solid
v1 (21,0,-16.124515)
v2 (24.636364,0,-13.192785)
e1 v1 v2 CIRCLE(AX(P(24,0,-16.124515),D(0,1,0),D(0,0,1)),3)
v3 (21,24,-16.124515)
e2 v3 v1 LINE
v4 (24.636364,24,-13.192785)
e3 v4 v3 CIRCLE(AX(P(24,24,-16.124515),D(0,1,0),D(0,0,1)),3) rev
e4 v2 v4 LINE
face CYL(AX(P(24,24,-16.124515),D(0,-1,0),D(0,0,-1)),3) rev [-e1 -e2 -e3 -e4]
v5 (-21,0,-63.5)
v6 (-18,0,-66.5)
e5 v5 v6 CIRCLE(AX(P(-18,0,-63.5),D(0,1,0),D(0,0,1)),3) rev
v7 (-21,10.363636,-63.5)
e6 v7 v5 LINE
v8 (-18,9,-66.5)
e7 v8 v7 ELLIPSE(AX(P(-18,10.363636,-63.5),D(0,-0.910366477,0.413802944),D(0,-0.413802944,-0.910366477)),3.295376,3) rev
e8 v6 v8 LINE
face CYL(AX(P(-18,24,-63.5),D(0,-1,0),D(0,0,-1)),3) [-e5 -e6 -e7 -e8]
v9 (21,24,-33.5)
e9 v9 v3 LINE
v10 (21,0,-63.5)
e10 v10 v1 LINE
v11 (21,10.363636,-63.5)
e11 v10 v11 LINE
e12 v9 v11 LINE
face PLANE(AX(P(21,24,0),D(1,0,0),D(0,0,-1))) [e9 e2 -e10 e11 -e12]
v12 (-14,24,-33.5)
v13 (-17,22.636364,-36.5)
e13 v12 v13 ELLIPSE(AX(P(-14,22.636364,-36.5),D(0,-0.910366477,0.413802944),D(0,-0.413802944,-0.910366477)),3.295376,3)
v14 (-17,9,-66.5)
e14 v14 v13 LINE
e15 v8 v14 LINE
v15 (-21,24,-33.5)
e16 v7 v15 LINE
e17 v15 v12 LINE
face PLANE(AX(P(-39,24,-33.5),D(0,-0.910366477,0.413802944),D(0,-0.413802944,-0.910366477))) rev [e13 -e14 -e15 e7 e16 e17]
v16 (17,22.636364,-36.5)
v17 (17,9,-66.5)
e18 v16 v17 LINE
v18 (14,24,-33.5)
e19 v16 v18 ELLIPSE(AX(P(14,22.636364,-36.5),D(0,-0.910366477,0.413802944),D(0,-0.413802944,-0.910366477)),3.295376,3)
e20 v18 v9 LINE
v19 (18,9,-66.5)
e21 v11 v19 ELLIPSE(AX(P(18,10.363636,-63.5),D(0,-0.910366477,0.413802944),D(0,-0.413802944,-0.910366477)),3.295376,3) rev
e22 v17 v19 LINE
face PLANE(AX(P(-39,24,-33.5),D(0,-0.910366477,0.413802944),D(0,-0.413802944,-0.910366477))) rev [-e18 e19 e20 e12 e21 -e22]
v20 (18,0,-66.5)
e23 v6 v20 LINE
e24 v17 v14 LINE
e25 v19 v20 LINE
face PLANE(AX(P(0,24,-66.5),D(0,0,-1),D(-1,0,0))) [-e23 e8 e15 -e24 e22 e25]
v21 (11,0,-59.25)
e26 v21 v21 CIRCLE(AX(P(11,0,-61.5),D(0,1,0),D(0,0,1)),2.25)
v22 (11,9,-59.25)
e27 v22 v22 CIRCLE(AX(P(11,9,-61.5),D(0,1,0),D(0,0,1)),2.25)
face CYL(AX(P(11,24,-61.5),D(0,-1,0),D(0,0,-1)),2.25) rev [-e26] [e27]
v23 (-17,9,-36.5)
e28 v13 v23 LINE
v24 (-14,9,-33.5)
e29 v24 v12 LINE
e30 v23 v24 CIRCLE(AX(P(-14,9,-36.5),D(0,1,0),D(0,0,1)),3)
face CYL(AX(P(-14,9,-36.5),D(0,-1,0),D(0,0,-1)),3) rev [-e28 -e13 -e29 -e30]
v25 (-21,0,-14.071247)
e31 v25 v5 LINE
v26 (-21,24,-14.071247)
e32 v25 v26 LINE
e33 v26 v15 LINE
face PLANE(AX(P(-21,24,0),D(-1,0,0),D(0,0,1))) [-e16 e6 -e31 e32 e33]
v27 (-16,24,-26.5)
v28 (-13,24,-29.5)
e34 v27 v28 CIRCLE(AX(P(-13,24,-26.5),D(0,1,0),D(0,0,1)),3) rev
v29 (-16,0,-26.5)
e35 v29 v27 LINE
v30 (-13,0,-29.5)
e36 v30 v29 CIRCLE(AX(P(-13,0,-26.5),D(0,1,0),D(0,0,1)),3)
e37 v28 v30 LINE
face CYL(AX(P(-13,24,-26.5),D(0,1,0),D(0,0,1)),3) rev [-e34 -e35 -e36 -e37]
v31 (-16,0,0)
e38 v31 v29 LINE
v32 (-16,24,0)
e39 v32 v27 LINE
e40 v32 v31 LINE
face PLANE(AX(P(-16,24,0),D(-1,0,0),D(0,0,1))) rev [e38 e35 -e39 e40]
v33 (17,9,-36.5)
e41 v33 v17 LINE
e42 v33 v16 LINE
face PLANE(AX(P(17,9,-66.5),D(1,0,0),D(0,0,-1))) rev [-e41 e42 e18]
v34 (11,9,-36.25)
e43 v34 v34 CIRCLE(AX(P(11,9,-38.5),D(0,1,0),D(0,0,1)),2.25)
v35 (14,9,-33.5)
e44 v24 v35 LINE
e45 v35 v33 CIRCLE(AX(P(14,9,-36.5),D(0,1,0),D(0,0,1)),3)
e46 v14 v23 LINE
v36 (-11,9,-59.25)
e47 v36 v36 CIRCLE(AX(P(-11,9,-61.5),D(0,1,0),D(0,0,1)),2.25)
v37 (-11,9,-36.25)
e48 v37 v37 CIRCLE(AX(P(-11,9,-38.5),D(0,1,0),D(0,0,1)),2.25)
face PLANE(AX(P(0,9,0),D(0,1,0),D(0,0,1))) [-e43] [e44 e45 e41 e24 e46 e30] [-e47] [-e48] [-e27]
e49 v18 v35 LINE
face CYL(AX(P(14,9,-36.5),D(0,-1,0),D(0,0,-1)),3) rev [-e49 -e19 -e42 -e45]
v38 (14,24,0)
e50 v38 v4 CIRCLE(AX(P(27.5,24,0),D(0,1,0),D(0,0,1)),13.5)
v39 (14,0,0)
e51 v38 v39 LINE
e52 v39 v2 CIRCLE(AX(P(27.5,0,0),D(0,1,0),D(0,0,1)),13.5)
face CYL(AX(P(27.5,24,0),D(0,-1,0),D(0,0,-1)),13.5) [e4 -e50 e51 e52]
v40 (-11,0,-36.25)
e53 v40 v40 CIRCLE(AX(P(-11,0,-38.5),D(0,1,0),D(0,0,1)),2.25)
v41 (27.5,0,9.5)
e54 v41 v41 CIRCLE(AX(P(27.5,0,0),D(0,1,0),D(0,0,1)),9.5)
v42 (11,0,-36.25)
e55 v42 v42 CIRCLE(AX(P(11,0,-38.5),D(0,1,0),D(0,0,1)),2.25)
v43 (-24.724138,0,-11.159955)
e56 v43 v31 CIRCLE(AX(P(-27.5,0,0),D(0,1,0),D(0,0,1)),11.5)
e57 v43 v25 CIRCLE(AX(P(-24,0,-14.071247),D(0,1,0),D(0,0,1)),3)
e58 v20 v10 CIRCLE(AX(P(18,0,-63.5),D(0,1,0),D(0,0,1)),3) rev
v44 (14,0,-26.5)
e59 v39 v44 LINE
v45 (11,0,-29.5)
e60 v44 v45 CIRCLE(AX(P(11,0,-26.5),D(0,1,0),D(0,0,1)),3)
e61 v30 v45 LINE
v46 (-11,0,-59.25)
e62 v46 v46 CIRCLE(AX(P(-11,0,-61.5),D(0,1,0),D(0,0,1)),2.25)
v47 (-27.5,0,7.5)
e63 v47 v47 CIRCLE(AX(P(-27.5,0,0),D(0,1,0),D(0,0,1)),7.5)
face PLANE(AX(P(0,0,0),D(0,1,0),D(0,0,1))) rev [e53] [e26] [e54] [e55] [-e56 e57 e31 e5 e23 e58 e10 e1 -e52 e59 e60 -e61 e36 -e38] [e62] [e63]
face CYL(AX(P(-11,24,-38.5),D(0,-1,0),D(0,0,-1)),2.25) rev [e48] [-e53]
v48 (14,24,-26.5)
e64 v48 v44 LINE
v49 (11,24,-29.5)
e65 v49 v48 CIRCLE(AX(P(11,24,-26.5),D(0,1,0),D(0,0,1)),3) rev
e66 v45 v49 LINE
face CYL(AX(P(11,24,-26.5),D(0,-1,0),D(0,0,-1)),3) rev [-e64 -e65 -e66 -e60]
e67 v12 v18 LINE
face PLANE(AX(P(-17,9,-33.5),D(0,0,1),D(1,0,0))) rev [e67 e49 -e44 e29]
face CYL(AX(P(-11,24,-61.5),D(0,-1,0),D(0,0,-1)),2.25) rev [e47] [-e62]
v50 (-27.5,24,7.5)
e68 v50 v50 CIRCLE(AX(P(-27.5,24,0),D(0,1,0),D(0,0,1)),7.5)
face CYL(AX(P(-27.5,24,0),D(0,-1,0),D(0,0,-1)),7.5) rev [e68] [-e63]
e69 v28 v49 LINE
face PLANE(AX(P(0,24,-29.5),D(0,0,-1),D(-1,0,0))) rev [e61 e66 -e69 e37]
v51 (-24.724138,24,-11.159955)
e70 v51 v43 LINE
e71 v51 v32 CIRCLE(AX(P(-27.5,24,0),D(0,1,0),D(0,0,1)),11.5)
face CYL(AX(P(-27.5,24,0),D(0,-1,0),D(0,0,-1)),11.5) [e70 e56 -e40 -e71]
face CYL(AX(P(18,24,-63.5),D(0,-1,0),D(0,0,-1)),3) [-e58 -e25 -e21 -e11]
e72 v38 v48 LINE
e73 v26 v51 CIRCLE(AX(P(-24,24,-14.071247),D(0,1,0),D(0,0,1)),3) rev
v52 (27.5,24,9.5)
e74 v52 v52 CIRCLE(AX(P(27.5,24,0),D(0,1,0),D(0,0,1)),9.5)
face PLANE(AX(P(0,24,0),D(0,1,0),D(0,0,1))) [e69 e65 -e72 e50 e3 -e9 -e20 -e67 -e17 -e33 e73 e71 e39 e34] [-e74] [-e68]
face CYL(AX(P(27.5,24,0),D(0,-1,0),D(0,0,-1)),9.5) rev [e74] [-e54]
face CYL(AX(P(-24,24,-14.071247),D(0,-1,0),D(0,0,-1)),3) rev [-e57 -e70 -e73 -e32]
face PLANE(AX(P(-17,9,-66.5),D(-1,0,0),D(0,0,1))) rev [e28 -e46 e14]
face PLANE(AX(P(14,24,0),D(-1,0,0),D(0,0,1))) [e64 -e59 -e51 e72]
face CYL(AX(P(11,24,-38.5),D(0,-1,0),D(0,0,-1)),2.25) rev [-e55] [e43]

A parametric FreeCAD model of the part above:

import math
import FreeCAD as App
import Part
import Sketcher
Q = App.Units.Quantity


def edges_at(feature, points):
    """Names of the edges that pass closest to the given points."""
    edges = feature.Shape.Edges
    near = lambda p: min(range(len(edges)), key=lambda i: edges[i].distToShape(Part.Vertex(*p))[0])
    return sorted({f"Edge{near(p) + 1}" for p in points})

doc = App.newDocument("Part")
body = doc.addObject("PartDesign::Body", "Body")

# Sketch on XZ plane
sketch1 = body.newObject("Sketcher::SketchObject", "Sketch")
sketch1.AttachmentSupport = (doc.getObject("XZ_Plane"), [""])
sketch1.MapMode = "FlatFace"
sketch1.addGeometry([
    Part.LineSegment(App.Vector(21, -11.8, 0), App.Vector(21, -66.5, 0)),  # 0
    Part.LineSegment(App.Vector(21, -66.5, 0), App.Vector(-21, -66.5, 0)),  # 1
    Part.LineSegment(App.Vector(-21, -66.5, 0), App.Vector(-21, -9.5, 0)),  # 2
    Part.ArcOfCircle(Part.Circle(App.Vector(-27.5, 0, 0), App.Vector(0, 0, 1), 11.5), math.radians(0), math.radians(304)),  # 3
    Part.LineSegment(App.Vector(-16, 0, 0), App.Vector(-16, -29.5, 0)),  # 4
    Part.LineSegment(App.Vector(-16, -29.5, 0), App.Vector(14, -29.5, 0)),  # 5
    Part.LineSegment(App.Vector(14, -29.5, 0), App.Vector(14, 0, 0)),  # 6
    Part.ArcOfCircle(Part.Circle(App.Vector(27.5, 0, 0), App.Vector(0, 0, 1), 13.5), math.radians(-119), math.radians(180)),  # 7
    Part.Circle(App.Vector(-27.5, 0, 0), App.Vector(0, 0, 1), 7.5),  # 8
    Part.Circle(App.Vector(27.5, 0, 0), App.Vector(0, 0, 1), 9.5),  # 9
    Part.Circle(App.Vector(-11, -38.5, 0), App.Vector(0, 0, 1), 2.2),  # 10
    Part.Circle(App.Vector(-11, -61.5, 0), App.Vector(0, 0, 1), 2.2),  # 11
    Part.Circle(App.Vector(11, -38.5, 0), App.Vector(0, 0, 1), 2.2),  # 12
    Part.Circle(App.Vector(11, -61.5, 0), App.Vector(0, 0, 1), 2.2),  # 13
], False)
sketch1.addConstraint([
    Sketcher.Constraint("Coincident", 0, 2, 1, 1),
    Sketcher.Constraint("Coincident", 1, 2, 2, 1),
    Sketcher.Constraint("Coincident", 2, 2, 3, 2),
    Sketcher.Constraint("Tangent", 3, 1, 4, 1),
    Sketcher.Constraint("Coincident", 4, 2, 5, 1),
    Sketcher.Constraint("Coincident", 5, 2, 6, 1),
    Sketcher.Constraint("Tangent", 6, 2, 7, 2),
    Sketcher.Constraint("Coincident", 7, 1, 0, 1),
    Sketcher.Constraint("Vertical", 0),
    Sketcher.Constraint("Horizontal", 1),
    Sketcher.Constraint("Vertical", 2),
    Sketcher.Constraint("Vertical", 4),
    Sketcher.Constraint("Horizontal", 5),
    Sketcher.Constraint("Vertical", 6),
    Sketcher.Constraint("Coincident", 8, 3, 3, 3),
    Sketcher.Constraint("Coincident", 9, 3, 7, 3),
    Sketcher.Constraint("Equal", 10, 11),
    Sketcher.Constraint("Equal", 11, 12),
    Sketcher.Constraint("Equal", 12, 13),
    Sketcher.Constraint("Symmetric", 3, 3, 7, 3, -1, 1),
    Sketcher.Constraint("Symmetric", 10, 3, 12, 3, -2),
    Sketcher.Constraint("Symmetric", 11, 3, 13, 3, -2),
    Sketcher.Constraint("PointOnObject", 3, 3, -1),
    Sketcher.Constraint("Vertical", 10, 3, 11, 3),
    Sketcher.Constraint("Diameter", 8, Q("15 mm")),
    Sketcher.Constraint("Diameter", 9, Q("19 mm")),
    Sketcher.Constraint("Diameter", 10, Q("4.5 mm")),
    Sketcher.Constraint("Radius", 3, Q("11.5 mm")),
    Sketcher.Constraint("Radius", 7, Q("13.5 mm")),
    Sketcher.Constraint("DistanceX", 1, 2, 1, 1, Q("42 mm")),
    Sketcher.Constraint("DistanceX", 5, 1, 5, 2, Q("30 mm")),
    Sketcher.Constraint("DistanceY", 4, 2, 4, 1, Q("29.5 mm")),
    Sketcher.Constraint("DistanceX", 10, 3, -1, 1, Q("11 mm")),
    Sketcher.Constraint("DistanceX", -1, 1, 0, 2, Q("21 mm")),
    Sketcher.Constraint("DistanceY", 11, 3, 10, 3, Q("23 mm")),
    Sketcher.Constraint("DistanceY", 0, 2, 13, 3, Q("5 mm")),
    Sketcher.Constraint("DistanceY", 10, 3, 4, 2, Q("9 mm")),
])
pad1 = body.newObject("PartDesign::Pad", "Pad")
pad1.Profile = sketch1
pad1.Length = 24
pad1.Reversed = True

# Sketch on XZ plane
sketch2 = body.newObject("Sketcher::SketchObject", "Sketch001")
sketch2.AttachmentSupport = (doc.getObject("XZ_Plane"), [""])
sketch2.MapMode = "FlatFace"
sketch2.AttachmentOffset = App.Placement(App.Vector(0, 0, -24), App.Rotation())
sketch2.addGeometry([
    Part.LineSegment(App.Vector(-17, -66, 0), App.Vector(-17, -34, 0)),
    Part.LineSegment(App.Vector(-17, -34, 0), App.Vector(17, -34, 0)),
    Part.LineSegment(App.Vector(17, -34, 0), App.Vector(17, -66, 0)),
    Part.LineSegment(App.Vector(17, -66, 0), App.Vector(-17, -66, 0)),
], False)
sketch2.addConstraint([
    Sketcher.Constraint("Coincident", 0, 2, 1, 1),
    Sketcher.Constraint("Coincident", 1, 2, 2, 1),
    Sketcher.Constraint("Coincident", 2, 2, 3, 1),
    Sketcher.Constraint("Coincident", 3, 2, 0, 1),
    Sketcher.Constraint("Vertical", 0),
    Sketcher.Constraint("Horizontal", 1),
    Sketcher.Constraint("Vertical", 2),
    Sketcher.Constraint("Horizontal", 3),
    Sketcher.Constraint("DistanceX", 1, 1, 1, 2, Q("34 mm")),
    Sketcher.Constraint("DistanceY", 0, 1, 0, 2, Q("33 mm")),
    Sketcher.Constraint("DistanceX", 0, 2, -1, 1, Q("17 mm")),
    Sketcher.Constraint("DistanceY", 0, 2, -1, 1, Q("33.5 mm")),
])
pocket1 = body.newObject("PartDesign::Pocket", "Pocket")
pocket1.Profile = sketch2
pocket1.Length = 15
pocket1.Reversed = True

# Sketch on YZ plane
sketch3 = body.newObject("Sketcher::SketchObject", "Sketch002")
sketch3.AttachmentSupport = (doc.getObject("YZ_Plane"), [""])
sketch3.MapMode = "FlatFace"
sketch3.AttachmentOffset = App.Placement(App.Vector(0, 0, -17), App.Rotation())
sketch3.addGeometry([
    Part.LineSegment(App.Vector(24, -34, 0), App.Vector(9, -66, 0)),
    Part.LineSegment(App.Vector(9, -66, 0), App.Vector(24, -66, 0)),
    Part.LineSegment(App.Vector(24, -66, 0), App.Vector(24, -34, 0)),
], False)
sketch3.addConstraint([
    Sketcher.Constraint("Coincident", 0, 2, 1, 1),
    Sketcher.Constraint("Coincident", 1, 2, 2, 1),
    Sketcher.Constraint("Coincident", 2, 2, 0, 1),
    Sketcher.Constraint("Horizontal", 1),
    Sketcher.Constraint("Vertical", 2),
    Sketcher.Constraint("DistanceX", 1, 1, 1, 2, Q("15 mm")),
    Sketcher.Constraint("DistanceY", 2, 1, 2, 2, Q("33 mm")),
    Sketcher.Constraint("DistanceX", -1, 1, 0, 2, Q("9 mm")),
    Sketcher.Constraint("DistanceY", 0, 2, -1, 1, Q("66.5 mm")),
])
pocket2 = body.newObject("PartDesign::Pocket", "Pocket001")
pocket2.Profile = sketch3
pocket2.Type = "ThroughAll"
pocket2.Midplane = True
doc.recompute()

fillet = body.newObject("PartDesign::Fillet", "Fillet")
fillet.Base = (pocket2, edges_at(pocket2, [
    (14, 12, -29.5),
    (-16, 12, -29.5),
    (-21, 12, -9.487),
    (21, 12, -11.832),
    (-17, 16.5, -33.5),
    (17, 16.5, -33.5),
    (-21, 4.5, -66.5),
    (21, 4.5, -66.5),
]))
fillet.Radius = 3

doc.recompute()
